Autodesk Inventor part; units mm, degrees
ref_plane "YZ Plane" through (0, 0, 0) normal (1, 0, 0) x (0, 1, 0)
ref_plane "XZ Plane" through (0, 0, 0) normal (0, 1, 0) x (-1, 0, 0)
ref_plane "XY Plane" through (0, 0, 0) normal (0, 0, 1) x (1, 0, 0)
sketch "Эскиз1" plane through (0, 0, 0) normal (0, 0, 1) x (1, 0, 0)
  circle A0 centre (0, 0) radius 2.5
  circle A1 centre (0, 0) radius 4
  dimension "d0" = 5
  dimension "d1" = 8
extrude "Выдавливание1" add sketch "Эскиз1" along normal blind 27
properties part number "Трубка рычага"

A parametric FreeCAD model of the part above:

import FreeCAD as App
import Part
import Sketcher
from FreeCAD import Vector
Q = App.Units.Quantity

doc = App.newDocument("Part")
body = doc.addObject("PartDesign::Body", "Body")

# Sketch on XY plane
sketch1 = body.newObject("Sketcher::SketchObject", "Sketch")
sketch1.AttachmentSupport = (doc.getObject("XY_Plane"), [""])
sketch1.MapMode = "FlatFace"
sketch1.addGeometry([
    Part.Circle(Vector(0, 0, 0), Vector(0, 0, 1), 4),
    Part.Circle(Vector(0, 0, 0), Vector(0, 0, 1), 2.5),
], False)
sketch1.addConstraint([
    Sketcher.Constraint("Coincident", 0, 3, -1, 1),
    Sketcher.Constraint("Coincident", 1, 3, -1, 1),
    Sketcher.Constraint("Diameter", 0, Q("8 mm")),
    Sketcher.Constraint("Diameter", 1, Q("5 mm")),
])
pad1 = body.newObject("PartDesign::Pad", "Pad")
pad1.Profile = sketch1
pad1.Length = 27

doc.recompute()
